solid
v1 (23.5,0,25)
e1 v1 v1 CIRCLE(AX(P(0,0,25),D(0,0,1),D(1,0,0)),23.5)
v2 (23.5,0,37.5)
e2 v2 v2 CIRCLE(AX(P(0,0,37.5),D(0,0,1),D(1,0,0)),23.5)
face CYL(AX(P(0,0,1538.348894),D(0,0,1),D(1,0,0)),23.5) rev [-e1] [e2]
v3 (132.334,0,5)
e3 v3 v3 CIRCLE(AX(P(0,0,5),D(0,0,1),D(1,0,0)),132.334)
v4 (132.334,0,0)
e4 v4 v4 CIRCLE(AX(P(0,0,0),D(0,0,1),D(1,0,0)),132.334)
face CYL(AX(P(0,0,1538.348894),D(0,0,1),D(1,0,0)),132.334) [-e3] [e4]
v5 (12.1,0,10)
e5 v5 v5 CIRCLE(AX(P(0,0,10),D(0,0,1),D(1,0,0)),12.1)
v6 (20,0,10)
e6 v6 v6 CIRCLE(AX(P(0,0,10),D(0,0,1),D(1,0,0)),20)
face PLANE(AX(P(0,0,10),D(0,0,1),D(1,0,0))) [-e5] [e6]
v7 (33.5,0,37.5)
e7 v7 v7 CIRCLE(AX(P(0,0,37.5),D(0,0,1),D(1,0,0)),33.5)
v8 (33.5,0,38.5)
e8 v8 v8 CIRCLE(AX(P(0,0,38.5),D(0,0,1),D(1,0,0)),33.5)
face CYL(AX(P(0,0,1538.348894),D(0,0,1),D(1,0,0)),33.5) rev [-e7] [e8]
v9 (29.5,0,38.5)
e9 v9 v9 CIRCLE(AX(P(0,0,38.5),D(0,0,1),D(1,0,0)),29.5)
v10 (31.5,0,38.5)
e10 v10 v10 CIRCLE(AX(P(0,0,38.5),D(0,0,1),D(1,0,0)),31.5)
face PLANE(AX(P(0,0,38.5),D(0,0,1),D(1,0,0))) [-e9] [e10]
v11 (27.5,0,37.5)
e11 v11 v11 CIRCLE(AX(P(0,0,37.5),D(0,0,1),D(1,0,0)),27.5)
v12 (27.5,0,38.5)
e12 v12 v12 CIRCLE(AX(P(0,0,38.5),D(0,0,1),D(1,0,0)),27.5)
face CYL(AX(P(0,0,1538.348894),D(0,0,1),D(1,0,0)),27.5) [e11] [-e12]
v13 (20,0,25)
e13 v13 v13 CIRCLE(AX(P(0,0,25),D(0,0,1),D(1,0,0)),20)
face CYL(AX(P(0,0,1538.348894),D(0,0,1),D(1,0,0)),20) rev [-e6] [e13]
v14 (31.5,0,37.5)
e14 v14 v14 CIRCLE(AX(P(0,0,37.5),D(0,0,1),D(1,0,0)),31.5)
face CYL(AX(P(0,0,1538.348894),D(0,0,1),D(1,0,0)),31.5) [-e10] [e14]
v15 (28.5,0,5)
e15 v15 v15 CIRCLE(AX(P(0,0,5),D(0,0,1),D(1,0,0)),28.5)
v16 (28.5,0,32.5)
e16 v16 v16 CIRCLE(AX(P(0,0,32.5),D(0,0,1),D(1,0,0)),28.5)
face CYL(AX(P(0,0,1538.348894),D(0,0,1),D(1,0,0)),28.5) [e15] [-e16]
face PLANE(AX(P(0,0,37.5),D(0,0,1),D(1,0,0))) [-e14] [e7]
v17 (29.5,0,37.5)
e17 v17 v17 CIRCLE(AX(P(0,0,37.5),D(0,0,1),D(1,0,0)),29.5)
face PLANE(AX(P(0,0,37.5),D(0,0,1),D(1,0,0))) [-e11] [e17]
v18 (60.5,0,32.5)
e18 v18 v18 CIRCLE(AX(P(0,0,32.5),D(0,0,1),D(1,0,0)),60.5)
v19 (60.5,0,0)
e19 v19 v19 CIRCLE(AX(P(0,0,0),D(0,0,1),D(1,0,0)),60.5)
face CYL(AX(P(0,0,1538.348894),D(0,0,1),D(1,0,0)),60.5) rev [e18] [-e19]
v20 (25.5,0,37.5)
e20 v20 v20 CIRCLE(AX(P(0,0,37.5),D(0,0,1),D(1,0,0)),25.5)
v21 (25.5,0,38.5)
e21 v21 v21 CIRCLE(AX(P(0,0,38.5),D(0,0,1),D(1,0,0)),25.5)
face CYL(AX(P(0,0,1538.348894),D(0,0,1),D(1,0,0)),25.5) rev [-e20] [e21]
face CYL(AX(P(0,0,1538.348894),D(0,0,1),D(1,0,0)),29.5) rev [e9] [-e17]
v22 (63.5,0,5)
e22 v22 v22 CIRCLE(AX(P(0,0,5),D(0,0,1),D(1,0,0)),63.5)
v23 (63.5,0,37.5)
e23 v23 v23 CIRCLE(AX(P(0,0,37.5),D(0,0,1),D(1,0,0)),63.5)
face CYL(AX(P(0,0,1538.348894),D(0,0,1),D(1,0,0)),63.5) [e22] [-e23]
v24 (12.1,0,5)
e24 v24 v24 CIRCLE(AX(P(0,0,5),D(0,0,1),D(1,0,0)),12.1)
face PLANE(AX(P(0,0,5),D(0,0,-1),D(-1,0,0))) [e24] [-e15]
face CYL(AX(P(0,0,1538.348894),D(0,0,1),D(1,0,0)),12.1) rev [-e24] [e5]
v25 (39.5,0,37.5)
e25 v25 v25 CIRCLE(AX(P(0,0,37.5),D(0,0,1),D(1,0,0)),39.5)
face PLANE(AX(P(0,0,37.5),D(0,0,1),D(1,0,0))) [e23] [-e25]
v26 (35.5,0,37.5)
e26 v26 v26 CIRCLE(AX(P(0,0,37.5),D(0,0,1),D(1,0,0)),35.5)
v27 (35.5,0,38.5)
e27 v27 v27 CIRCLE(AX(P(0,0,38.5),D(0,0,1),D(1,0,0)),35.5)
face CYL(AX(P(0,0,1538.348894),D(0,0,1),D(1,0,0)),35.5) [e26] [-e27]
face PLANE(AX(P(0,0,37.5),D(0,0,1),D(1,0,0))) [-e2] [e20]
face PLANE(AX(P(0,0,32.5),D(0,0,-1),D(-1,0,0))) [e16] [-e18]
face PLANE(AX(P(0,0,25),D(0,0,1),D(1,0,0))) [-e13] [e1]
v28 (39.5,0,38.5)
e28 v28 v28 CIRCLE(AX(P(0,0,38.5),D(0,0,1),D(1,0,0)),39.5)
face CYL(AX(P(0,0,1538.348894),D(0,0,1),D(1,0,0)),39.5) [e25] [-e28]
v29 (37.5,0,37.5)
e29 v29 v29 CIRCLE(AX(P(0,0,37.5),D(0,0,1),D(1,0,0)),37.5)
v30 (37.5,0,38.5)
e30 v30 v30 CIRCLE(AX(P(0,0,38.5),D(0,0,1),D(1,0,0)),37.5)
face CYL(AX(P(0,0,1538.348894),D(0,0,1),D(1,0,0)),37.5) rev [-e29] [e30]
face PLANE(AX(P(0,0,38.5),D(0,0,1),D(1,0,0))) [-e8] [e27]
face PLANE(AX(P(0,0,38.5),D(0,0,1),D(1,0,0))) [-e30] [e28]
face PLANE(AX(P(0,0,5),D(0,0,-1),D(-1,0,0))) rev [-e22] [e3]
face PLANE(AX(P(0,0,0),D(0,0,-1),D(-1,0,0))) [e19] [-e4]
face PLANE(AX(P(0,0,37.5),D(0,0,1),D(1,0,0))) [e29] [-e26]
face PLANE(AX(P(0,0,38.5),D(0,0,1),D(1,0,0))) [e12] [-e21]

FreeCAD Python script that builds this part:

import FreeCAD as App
import Part
import Sketcher
from FreeCAD import Vector


def add_polygon(sketch, points):
    """Adds a closed chain of lines whose ends are joined by coincident constraints."""
    first, n = sketch.GeometryCount, len(points)
    for a, b in zip(points, points[1:] + points[:1]):
        sketch.addGeometry(Part.LineSegment(App.Vector(*a, 0), App.Vector(*b, 0)), False)
    for i in range(n):
        sketch.addConstraint(Sketcher.Constraint("Coincident", first + i, 2, first + (i + 1) % n, 1))

doc = App.newDocument("Part")
body = doc.addObject("PartDesign::Body", "Body")

sketch1 = body.newObject("Sketcher::SketchObject", "Sketch")
sketch1.AttachmentSupport = (doc.getObject("YZ_Plane"), [""])
sketch1.MapMode = "FlatFace"
add_polygon(sketch1, [(-28.5, 32.5), (-28.5, 5), (-12.1, 5), (-12.1, 10), (-20, 10), (-20, 25), (-23.5, 25), (-23.5, 37.5), (-25.5, 37.5), (-25.5, 38.5), (-27.5, 38.5), (-27.5, 37.5), (-29.5, 37.5), (-29.5, 38.5), (-31.5, 38.5), (-31.5, 37.5), (-33.5, 37.5), (-33.5, 38.5), (-35.5, 38.5), (-35.5, 37.5), (-37.5, 37.5), (-37.5, 38.5), (-39.5, 38.5), (-39.5, 37.5), (-63.5, 37.5), (-63.5, 5), (-132.334, 5), (-132.334, 0), (-60.5, 0), (-60.5, 32.5)])
sketch1.addConstraint([
    Sketcher.Constraint("Vertical", 0),
    Sketcher.Constraint("Horizontal", 1),
    Sketcher.Constraint("Vertical", 2),
    Sketcher.Constraint("Horizontal", 3),
    Sketcher.Constraint("Vertical", 4),
    Sketcher.Constraint("Horizontal", 5),
    Sketcher.Constraint("Vertical", 6),
    Sketcher.Constraint("Horizontal", 7),
    Sketcher.Constraint("Vertical", 8),
    Sketcher.Constraint("Horizontal", 9),
    Sketcher.Constraint("Vertical", 10),
    Sketcher.Constraint("Horizontal", 11),
    Sketcher.Constraint("Vertical", 12),
    Sketcher.Constraint("Horizontal", 13),
    Sketcher.Constraint("Vertical", 14),
    Sketcher.Constraint("Horizontal", 15),
    Sketcher.Constraint("Vertical", 16),
    Sketcher.Constraint("Horizontal", 17),
    Sketcher.Constraint("Vertical", 18),
    Sketcher.Constraint("Horizontal", 19),
    Sketcher.Constraint("Vertical", 20),
    Sketcher.Constraint("Horizontal", 21),
    Sketcher.Constraint("Vertical", 22),
    Sketcher.Constraint("Horizontal", 23),
    Sketcher.Constraint("Vertical", 24),
    Sketcher.Constraint("Horizontal", 25),
    Sketcher.Constraint("Vertical", 26),
    Sketcher.Constraint("Horizontal", 27),
    Sketcher.Constraint("Vertical", 28),
    Sketcher.Constraint("Horizontal", 29),
    Sketcher.Constraint("PointOnObject", 26, 2, -1),
    Sketcher.Constraint("Horizontal", 7, 2, 10, 2),
    Sketcher.Constraint("Horizontal", 9, 2, 12, 2),
    Sketcher.Constraint("Horizontal", 11, 2, 14, 2),
    Sketcher.Constraint("Horizontal", 13, 2, 16, 2),
    Sketcher.Constraint("Horizontal", 15, 2, 18, 2),
    Sketcher.Constraint("Horizontal", 17, 2, 20, 2),
    Sketcher.Constraint("Horizontal", 19, 2, 22, 2),
    Sketcher.Constraint("Horizontal", 1, 2, 24, 2),
    Sketcher.Constraint("Equal", 7, 9),
    Sketcher.Constraint("Equal", 9, 11),
    Sketcher.Constraint("Equal", 11, 13),
    Sketcher.Constraint("Equal", 13, 15),
    Sketcher.Constraint("Equal", 15, 17),
    Sketcher.Constraint("Equal", 17, 19),
    Sketcher.Constraint("Equal", 19, 21),
    Sketcher.Constraint("Equal", 2, 26),
    Sketcher.Constraint("Equal", 24, 28),
    Sketcher.Constraint("DistanceX", 7, 2, 7, 1, 2.0),
    Sketcher.Constraint("DistanceX", 23, 2, 23, 1, 24.0),
    Sketcher.Constraint("DistanceX", 29, 1, 29, 2, 32.0),
    Sketcher.Constraint("DistanceY", 2, 1, 2, 2, 5.0),
    Sketcher.Constraint("DistanceY", 4, 1, 4, 2, 15.0),
    Sketcher.Constraint("DistanceY", 8, 1, 8, 2, 1.0),
    Sketcher.Constraint("DistanceX", 1, 1, 1, 2, 16.4),
    Sketcher.Constraint("DistanceX", 3, 2, 3, 1, 7.9),
    Sketcher.Constraint("DistanceX", 5, 2, 5, 1, 3.5),
    Sketcher.Constraint("DistanceY", 0, 2, 0, 1, 27.5),
    Sketcher.Constraint("DistanceX", 3, 2, -1, 1, 20.0),
    Sketcher.Constraint("DistanceX", 25, 2, 25, 1, 68.834),
])
revolution = body.newObject("PartDesign::Revolution", "Revolution")
revolution.Profile = sketch1
revolution.ReferenceAxis = (sketch1, ["V_Axis"])
revolution.Angle = 360

doc.recompute()
